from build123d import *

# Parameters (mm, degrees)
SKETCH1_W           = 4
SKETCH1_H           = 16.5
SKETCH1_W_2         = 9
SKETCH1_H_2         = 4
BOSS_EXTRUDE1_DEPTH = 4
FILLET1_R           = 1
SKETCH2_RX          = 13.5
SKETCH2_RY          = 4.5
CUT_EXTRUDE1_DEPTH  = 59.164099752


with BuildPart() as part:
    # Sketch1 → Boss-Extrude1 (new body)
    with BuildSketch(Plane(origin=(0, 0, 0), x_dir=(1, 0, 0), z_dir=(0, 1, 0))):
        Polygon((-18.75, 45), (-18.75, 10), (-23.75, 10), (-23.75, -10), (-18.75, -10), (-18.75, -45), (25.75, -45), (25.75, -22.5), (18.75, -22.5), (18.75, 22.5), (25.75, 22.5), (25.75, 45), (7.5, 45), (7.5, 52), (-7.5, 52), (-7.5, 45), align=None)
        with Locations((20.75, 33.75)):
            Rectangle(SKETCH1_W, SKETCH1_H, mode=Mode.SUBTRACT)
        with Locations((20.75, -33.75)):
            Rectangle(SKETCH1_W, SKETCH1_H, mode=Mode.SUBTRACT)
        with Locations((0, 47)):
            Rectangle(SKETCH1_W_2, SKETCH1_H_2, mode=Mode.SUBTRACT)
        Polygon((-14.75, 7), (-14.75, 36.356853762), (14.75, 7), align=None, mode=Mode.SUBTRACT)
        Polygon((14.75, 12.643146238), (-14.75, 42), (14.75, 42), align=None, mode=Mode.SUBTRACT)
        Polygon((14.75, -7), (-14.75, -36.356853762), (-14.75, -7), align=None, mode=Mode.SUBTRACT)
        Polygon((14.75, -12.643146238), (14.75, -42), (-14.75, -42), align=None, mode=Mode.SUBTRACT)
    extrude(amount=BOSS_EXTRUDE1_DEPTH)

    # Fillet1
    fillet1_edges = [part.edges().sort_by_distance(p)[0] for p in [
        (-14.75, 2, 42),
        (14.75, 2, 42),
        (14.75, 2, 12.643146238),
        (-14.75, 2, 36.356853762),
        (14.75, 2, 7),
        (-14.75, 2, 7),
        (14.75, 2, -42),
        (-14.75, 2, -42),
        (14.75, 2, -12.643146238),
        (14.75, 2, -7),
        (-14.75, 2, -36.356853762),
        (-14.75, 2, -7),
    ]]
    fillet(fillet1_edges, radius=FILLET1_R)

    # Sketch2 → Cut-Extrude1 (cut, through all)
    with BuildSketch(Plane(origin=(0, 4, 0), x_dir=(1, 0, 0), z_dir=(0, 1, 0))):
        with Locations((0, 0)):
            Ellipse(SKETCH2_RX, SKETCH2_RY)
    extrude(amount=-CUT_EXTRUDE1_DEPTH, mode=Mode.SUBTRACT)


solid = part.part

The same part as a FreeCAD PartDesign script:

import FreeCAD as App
import Part
import Sketcher

V = App.Vector
Q = App.Units.Quantity


def edges_at(feature, points):
    """Names of the edges that pass closest to the given points."""
    edges = feature.Shape.Edges
    near = lambda p: min(range(len(edges)), key=lambda i: edges[i].distToShape(Part.Vertex(*p))[0])
    return sorted({f"Edge{near(p) + 1}" for p in points})


def add_polygon(sketch, points):
    """Adds a closed chain of lines whose ends are joined by coincident constraints."""
    first, n = sketch.GeometryCount, len(points)
    for a, b in zip(points, points[1:] + points[:1]):
        sketch.addGeometry(Part.LineSegment(App.Vector(*a, 0), App.Vector(*b, 0)), False)
    for i in range(n):
        sketch.addConstraint(Sketcher.Constraint("Coincident", first + i, 2, first + (i + 1) % n, 1))

doc = App.newDocument("Part")
params = doc.addObject("Spreadsheet::Sheet", "Params")
for row, (alias, value) in enumerate([
    ("sketch1_width", "5 mm"),
    ("sketch1_width2", "7 mm"),
    ("sketch1_width3", "15 mm"),
    ("sketch1_width4", "4 mm"),
    ("sketch1_width5", "9 mm"),
    ("pad1_length", "4 mm"),
    ("fillet_radius", "1 mm"),
], start=1):
    params.set(f"A{row}", alias)
    params.set(f"B{row}", "=" + value)
    params.setAlias(f"B{row}", alias)

body = doc.addObject("PartDesign::Body", "Body")

# Sketch on XZ plane
sketch1 = body.newObject("Sketcher::SketchObject", "Sketch")
sketch1.AttachmentSupport = (doc.getObject("XZ_Plane"), [""])
sketch1.MapMode = "FlatFace"
add_polygon(sketch1, [(-18.8, -45), (-18.8, -10), (-23.8, -10), (-23.8, 10), (-18.8, 10), (-18.8, 45), (25.8, 45), (25.8, 22.5), (18.8, 22.5), (18.8, -22.5), (25.8, -22.5), (25.8, -45), (7.5, -45), (7.5, -52), (-7.5, -52), (-7.5, -45)])  # lines 0-15
add_polygon(sketch1, [(-14.8, 42), (14.8, 12.6), (14.8, 42)])  # lines 16-18
add_polygon(sketch1, [(-14.8, 7), (14.8, 7), (-14.8, 36.4)])  # lines 19-21
add_polygon(sketch1, [(22.8, 42), (18.8, 42), (18.8, 25.5), (22.8, 25.5)])  # lines 22-25
add_polygon(sketch1, [(14.8, -7), (-14.8, -7), (-14.8, -36.4)])  # lines 26-28
add_polygon(sketch1, [(14.8, -42), (14.8, -12.6), (-14.8, -42)])  # lines 29-31
add_polygon(sketch1, [(4.5, -45), (-4.5, -45), (-4.5, -49), (4.5, -49)])  # lines 32-35
add_polygon(sketch1, [(22.8, -25.5), (18.8, -25.5), (18.8, -42), (22.8, -42)])  # lines 36-39
sketch1.addConstraint([
    Sketcher.Constraint("Vertical", 0),
    Sketcher.Constraint("Horizontal", 1),
    Sketcher.Constraint("Vertical", 2),
    Sketcher.Constraint("Horizontal", 3),
    Sketcher.Constraint("Vertical", 4),
    Sketcher.Constraint("Horizontal", 5),
    Sketcher.Constraint("Vertical", 6),
    Sketcher.Constraint("Horizontal", 7),
    Sketcher.Constraint("Vertical", 8),
    Sketcher.Constraint("Horizontal", 9),
    Sketcher.Constraint("Vertical", 10),
    Sketcher.Constraint("Horizontal", 11),
    Sketcher.Constraint("Vertical", 12),
    Sketcher.Constraint("Horizontal", 13),
    Sketcher.Constraint("Vertical", 14),
    Sketcher.Constraint("Horizontal", 15),
    Sketcher.Constraint("Vertical", 17),
    Sketcher.Constraint("Horizontal", 18),
    Sketcher.Constraint("Horizontal", 19),
    Sketcher.Constraint("Vertical", 21),
    Sketcher.Constraint("Horizontal", 22),
    Sketcher.Constraint("Vertical", 23),
    Sketcher.Constraint("Horizontal", 24),
    Sketcher.Constraint("Vertical", 25),
    Sketcher.Constraint("Horizontal", 26),
    Sketcher.Constraint("Vertical", 27),
    Sketcher.Constraint("Vertical", 29),
    Sketcher.Constraint("Horizontal", 31),
    Sketcher.Constraint("Horizontal", 32),
    Sketcher.Constraint("Vertical", 33),
    Sketcher.Constraint("Horizontal", 34),
    Sketcher.Constraint("Vertical", 35),
    Sketcher.Constraint("Horizontal", 36),
    Sketcher.Constraint("Vertical", 37),
    Sketcher.Constraint("Horizontal", 38),
    Sketcher.Constraint("Vertical", 39),
    Sketcher.Constraint("Symmetric", 19, 2, 26, 2, -1, 1),
    Sketcher.Constraint("Symmetric", 17, 2, 30, 2, -1, 1),
    Sketcher.Constraint("Symmetric", 11, 2, 14, 2, -2),
    Sketcher.Constraint("Symmetric", 0, 2, 3, 2, -1),
    Sketcher.Constraint("Symmetric", 6, 2, 9, 2, -1),
    Sketcher.Constraint("Symmetric", 20, 2, 27, 2, -1),
    Sketcher.Constraint("Symmetric", 16, 2, 29, 2, -1),
    Sketcher.Constraint("Symmetric", 23, 2, 36, 2, -1),
    Sketcher.Constraint("Symmetric", 25, 2, 38, 2, -1),
    Sketcher.Constraint("Parallel", 16, 20),
    Sketcher.Constraint("Parallel", 28, 30),
    Sketcher.Constraint("Horizontal", 18, 2, 22, 2),
    Sketcher.Constraint("Horizontal", 15, 2, 32, 2),
    Sketcher.Constraint("Vertical", 17, 2, 19, 2),
    Sketcher.Constraint("Vertical", 18, 2, 20, 2),
    Sketcher.Constraint("Vertical", 8, 2, 22, 2),
    Sketcher.Constraint("Equal", 0, 4),
    Sketcher.Constraint("Equal", 9, 12),
    Sketcher.Constraint("Equal", 38, 33),
    Sketcher.Constraint("DistanceX", 1, 2, 1, 1, Q("5 mm")),
    Sketcher.Constraint("DistanceX", 7, 2, 7, 1, Q("7 mm")),
    Sketcher.Constraint("DistanceX", 13, 2, 13, 1, Q("15 mm")),
    Sketcher.Constraint("DistanceX", 22, 2, 22, 1, Q("4 mm")),
    Sketcher.Constraint("DistanceX", 32, 2, 32, 1, Q("9 mm")),
    Sketcher.Constraint("DistanceY", 0, 1, 0, 2, Q("35 mm")),
    Sketcher.Constraint("DistanceY", 2, 1, 2, 2, Q("20 mm")),
    Sketcher.Constraint("DistanceY", 8, 2, 8, 1, Q("45 mm")),
    Sketcher.Constraint("DistanceX", 5, 1, 5, 2, Q("44.5 mm")),
    Sketcher.Constraint("DistanceX", 18, 2, 18, 1, Q("29.5 mm")),
    Sketcher.Constraint("DistanceY", 23, 2, 23, 1, Q("16.5 mm")),
    Sketcher.Constraint("DistanceY", -1, 1, 17, 2, Q("42 mm")),
    Sketcher.Constraint("DistanceY", -1, 1, 19, 2, Q("7 mm")),
    Sketcher.Constraint("DistanceX", 16, 2, 7, 2, Q("4 mm")),
    Sketcher.Constraint("DistanceX", 14, 2, 32, 2, Q("3 mm")),
    Sketcher.Constraint("DistanceY", 17, 1, 17, 2, Q("29.356854 mm")),
])
sketch1.setExpression("Constraints[95]", "Params.sketch1_width")
sketch1.setExpression("Constraints[96]", "Params.sketch1_width2")
sketch1.setExpression("Constraints[97]", "Params.sketch1_width3")
sketch1.setExpression("Constraints[98]", "Params.sketch1_width4")
sketch1.setExpression("Constraints[99]", "Params.sketch1_width5")
pad1 = body.newObject("PartDesign::Pad", "Pad")
pad1.Profile = sketch1
pad1.setExpression("Length", "Params.pad1_length")
pad1.Reversed = True
doc.recompute()

fillet = body.newObject("PartDesign::Fillet", "Fillet")
fillet.Base = (pad1, edges_at(pad1, [
    (-14.75, 2, 42),
    (14.75, 2, 42),
    (14.75, 2, 12.643),
    (-14.75, 2, 36.357),
    (14.75, 2, 7),
    (-14.75, 2, 7),
    (14.75, 2, -42),
    (-14.75, 2, -42),
    (14.75, 2, -12.643),
    (14.75, 2, -7),
    (-14.75, 2, -36.357),
    (-14.75, 2, -7),
]))
fillet.setExpression("Radius", "Params.fillet_radius")

# Sketch on XZ plane
sketch2 = body.newObject("Sketcher::SketchObject", "Sketch001")
sketch2.AttachmentSupport = (doc.getObject("XZ_Plane"), [""])
sketch2.MapMode = "FlatFace"
sketch2.AttachmentOffset = App.Placement(V(0, 0, -4), App.Rotation())
sketch2.addGeometry(Part.Ellipse(V(13.5, 0, 0), V(0, 4.5, 0), V(0, 0, 0)), False)
sketch2.addConstraint(Sketcher.Constraint("Block", 0))
pocket1 = body.newObject("PartDesign::Pocket", "Pocket")
pocket1.Profile = sketch2
pocket1.Type = "ThroughAll"
pocket1.Reversed = True

doc.recompute()
